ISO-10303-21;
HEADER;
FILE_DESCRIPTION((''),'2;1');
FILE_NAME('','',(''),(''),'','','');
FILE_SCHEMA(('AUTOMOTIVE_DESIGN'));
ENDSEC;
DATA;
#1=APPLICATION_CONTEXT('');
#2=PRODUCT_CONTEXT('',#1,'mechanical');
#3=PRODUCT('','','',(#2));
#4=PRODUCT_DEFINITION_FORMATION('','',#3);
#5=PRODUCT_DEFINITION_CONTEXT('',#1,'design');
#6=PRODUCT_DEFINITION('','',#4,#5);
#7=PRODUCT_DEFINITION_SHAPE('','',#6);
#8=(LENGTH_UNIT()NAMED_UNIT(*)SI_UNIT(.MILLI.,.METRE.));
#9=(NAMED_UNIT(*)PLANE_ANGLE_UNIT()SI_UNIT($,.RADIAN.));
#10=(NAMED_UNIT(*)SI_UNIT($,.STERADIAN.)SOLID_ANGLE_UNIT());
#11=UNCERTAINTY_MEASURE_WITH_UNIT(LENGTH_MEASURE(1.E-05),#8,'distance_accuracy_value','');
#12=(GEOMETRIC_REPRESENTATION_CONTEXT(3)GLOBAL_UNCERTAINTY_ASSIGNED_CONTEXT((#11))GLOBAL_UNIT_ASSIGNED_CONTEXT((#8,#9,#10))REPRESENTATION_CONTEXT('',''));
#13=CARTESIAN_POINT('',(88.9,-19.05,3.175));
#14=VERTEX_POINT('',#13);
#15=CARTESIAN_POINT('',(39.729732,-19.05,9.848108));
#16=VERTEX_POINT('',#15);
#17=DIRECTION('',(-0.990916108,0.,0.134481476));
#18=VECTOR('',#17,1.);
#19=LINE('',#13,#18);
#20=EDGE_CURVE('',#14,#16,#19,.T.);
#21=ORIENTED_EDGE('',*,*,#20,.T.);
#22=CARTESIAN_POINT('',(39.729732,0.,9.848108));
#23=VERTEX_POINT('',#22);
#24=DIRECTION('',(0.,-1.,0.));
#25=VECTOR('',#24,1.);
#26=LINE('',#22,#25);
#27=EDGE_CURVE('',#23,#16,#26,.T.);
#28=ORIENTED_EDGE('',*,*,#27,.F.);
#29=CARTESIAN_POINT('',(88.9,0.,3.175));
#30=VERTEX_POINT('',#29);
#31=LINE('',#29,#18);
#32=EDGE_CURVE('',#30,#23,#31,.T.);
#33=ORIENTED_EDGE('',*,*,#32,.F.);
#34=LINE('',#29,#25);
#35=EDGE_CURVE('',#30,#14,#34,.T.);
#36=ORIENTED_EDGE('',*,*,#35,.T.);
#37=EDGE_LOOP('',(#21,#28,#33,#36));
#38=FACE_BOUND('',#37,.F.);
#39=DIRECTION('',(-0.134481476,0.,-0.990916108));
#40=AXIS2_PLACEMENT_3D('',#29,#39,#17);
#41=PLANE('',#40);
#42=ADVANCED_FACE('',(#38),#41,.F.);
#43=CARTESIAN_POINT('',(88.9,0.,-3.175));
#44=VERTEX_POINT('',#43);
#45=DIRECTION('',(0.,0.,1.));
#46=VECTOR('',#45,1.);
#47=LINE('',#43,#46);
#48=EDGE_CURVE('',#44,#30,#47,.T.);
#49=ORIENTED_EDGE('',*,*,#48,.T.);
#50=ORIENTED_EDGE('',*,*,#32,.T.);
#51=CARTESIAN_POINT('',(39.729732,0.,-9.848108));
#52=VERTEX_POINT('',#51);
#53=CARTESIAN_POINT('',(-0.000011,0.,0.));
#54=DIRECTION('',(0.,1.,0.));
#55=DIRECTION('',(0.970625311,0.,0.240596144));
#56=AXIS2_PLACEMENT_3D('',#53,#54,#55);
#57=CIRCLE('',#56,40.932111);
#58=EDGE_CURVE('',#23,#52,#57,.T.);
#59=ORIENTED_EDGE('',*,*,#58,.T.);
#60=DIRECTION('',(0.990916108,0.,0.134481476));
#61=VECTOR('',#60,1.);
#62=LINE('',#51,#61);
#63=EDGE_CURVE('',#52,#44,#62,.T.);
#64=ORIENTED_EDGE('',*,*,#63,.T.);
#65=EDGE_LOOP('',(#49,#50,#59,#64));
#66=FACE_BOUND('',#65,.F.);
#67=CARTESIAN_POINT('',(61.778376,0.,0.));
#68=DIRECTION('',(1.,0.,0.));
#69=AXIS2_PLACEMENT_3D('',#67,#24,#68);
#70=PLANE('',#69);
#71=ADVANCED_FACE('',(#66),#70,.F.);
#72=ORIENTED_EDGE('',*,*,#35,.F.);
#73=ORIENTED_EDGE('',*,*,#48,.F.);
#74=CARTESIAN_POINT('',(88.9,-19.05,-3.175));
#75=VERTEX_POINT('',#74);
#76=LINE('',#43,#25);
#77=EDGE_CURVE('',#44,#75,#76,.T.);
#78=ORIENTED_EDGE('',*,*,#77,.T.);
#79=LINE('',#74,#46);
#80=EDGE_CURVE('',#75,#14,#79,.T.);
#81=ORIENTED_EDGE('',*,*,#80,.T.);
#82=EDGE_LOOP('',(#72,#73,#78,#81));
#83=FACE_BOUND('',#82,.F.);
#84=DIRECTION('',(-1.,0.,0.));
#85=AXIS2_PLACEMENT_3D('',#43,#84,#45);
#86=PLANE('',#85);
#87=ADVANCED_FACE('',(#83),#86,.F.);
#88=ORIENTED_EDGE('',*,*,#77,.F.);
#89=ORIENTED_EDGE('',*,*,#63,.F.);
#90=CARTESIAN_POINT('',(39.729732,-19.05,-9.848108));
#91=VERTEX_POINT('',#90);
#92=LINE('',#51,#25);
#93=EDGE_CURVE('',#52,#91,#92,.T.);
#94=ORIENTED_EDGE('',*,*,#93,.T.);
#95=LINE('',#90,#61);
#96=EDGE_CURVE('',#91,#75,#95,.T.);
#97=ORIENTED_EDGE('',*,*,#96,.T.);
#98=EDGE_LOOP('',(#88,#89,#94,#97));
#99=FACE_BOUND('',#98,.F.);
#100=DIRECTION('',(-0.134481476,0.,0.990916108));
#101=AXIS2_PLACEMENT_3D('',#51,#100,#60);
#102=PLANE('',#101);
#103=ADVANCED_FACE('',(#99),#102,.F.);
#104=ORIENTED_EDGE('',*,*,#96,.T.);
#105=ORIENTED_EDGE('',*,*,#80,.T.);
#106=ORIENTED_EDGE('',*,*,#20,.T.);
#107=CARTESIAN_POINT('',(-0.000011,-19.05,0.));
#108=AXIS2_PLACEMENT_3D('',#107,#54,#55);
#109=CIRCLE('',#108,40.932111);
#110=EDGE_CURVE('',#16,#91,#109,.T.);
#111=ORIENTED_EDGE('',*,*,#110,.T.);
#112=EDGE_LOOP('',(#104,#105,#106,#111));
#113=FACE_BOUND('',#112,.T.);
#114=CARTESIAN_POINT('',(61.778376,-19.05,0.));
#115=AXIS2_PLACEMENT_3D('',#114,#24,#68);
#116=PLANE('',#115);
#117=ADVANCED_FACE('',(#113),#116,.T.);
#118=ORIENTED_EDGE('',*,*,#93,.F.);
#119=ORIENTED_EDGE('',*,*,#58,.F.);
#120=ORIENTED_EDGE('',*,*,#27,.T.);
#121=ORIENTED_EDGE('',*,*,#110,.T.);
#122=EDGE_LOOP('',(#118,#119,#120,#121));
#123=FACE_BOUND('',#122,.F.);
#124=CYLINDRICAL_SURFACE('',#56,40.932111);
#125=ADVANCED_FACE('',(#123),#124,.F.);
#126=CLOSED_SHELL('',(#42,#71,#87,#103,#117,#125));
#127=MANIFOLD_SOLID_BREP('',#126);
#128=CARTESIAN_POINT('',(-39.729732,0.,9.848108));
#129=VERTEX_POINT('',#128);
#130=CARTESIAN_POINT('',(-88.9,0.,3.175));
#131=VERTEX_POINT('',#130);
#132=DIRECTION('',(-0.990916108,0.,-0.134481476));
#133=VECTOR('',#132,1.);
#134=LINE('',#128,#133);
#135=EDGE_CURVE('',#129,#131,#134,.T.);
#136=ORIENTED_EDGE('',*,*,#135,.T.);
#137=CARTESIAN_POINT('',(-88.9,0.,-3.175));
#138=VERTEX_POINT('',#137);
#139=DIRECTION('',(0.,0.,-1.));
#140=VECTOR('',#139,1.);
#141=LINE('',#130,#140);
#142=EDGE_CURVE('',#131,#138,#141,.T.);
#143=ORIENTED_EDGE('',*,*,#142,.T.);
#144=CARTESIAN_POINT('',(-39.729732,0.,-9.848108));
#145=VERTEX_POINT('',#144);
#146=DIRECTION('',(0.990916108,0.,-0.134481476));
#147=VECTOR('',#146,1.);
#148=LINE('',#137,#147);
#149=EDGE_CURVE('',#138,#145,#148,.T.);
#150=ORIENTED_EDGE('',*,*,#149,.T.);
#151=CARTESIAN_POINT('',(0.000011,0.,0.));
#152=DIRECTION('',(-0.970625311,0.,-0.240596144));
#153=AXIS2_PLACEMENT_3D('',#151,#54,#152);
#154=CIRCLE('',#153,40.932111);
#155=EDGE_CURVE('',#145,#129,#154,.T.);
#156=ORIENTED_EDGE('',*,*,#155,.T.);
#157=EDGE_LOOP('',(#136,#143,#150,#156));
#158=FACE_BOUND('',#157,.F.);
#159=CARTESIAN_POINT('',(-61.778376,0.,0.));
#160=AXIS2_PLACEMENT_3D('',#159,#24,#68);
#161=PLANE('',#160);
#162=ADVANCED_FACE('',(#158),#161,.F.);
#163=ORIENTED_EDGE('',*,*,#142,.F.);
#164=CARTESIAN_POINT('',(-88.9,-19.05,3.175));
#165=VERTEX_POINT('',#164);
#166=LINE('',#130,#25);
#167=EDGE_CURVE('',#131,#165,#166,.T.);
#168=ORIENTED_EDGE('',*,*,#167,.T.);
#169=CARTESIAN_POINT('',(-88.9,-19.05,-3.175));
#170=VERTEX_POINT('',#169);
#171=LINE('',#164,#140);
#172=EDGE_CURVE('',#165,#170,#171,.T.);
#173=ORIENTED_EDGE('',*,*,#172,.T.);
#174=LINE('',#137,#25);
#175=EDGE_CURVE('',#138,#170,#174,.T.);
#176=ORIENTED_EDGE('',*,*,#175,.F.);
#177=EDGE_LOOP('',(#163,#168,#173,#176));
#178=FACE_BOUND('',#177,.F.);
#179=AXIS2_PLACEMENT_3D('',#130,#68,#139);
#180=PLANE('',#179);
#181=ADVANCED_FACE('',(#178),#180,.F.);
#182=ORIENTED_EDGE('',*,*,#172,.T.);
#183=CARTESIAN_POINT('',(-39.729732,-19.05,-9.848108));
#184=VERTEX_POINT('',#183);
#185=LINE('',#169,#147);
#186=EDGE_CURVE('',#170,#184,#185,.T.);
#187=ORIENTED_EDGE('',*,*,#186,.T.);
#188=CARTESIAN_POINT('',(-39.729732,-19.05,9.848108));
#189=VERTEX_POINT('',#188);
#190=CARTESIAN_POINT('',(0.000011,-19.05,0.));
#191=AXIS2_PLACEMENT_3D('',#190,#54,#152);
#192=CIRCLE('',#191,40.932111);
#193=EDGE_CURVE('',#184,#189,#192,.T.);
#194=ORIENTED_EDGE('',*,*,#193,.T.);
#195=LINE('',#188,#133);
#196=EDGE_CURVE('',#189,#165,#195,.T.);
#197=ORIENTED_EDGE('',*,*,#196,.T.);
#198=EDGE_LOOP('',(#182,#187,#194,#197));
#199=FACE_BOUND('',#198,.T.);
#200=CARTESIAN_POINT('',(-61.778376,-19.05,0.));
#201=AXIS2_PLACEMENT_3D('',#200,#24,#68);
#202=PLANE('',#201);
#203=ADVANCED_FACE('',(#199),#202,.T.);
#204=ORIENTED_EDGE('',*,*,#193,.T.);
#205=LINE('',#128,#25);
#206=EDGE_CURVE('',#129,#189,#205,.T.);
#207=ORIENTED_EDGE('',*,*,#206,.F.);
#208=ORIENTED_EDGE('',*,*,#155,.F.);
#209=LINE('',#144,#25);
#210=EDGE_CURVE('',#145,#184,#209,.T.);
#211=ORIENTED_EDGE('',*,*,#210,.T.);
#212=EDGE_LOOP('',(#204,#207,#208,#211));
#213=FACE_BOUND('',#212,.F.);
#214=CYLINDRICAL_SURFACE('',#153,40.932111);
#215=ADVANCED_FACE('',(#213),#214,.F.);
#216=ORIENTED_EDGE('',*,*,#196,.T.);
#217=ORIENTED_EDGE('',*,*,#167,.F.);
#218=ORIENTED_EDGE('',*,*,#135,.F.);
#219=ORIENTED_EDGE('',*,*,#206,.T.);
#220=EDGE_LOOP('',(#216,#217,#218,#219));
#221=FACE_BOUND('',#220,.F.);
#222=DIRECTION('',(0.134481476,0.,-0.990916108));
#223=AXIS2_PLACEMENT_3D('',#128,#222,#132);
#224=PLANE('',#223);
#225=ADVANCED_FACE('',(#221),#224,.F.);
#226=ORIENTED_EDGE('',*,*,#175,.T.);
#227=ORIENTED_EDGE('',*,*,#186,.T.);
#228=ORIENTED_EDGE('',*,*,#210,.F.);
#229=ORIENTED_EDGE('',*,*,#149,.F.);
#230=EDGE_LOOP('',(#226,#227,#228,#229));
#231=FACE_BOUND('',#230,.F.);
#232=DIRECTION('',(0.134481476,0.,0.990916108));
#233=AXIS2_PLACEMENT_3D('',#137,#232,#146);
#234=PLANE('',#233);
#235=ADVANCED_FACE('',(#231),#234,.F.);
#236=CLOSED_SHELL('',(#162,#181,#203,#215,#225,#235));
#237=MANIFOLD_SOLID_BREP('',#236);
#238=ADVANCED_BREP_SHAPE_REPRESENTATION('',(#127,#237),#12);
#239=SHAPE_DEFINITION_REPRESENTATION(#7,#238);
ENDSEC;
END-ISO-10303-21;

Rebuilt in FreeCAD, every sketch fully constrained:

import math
import FreeCAD as App
import Part
import Sketcher
Q = App.Units.Quantity

doc = App.newDocument("Part")
body = doc.addObject("PartDesign::Body", "Body")
body.AllowCompound = True

# Sketch on XZ plane
sketch1 = body.newObject("Sketcher::SketchObject", "Sketch")
sketch1.AttachmentSupport = (doc.getObject("XZ_Plane"), [""])
sketch1.MapMode = "FlatFace"
sketch1.addGeometry([
    Part.ArcOfCircle(Part.Circle(App.Vector(0.000011, 0, 0), App.Vector(0, 0, 1), 40.932111), math.radians(166.078272), math.radians(193.921728)),  # 0
    Part.LineSegment(App.Vector(-39.729732, 9.848108, 0), App.Vector(-88.9, 3.175, 0)),  # 1
    Part.LineSegment(App.Vector(-88.9, 3.175, 0), App.Vector(-88.9, -3.175, 0)),  # 2
    Part.LineSegment(App.Vector(-88.9, -3.175, 0), App.Vector(-39.729732, -9.848108, 0)),  # 3
    Part.LineSegment(App.Vector(39.729732, -9.848108, 0), App.Vector(88.9, -3.175, 0)),  # 4
    Part.LineSegment(App.Vector(88.9, -3.175, 0), App.Vector(88.9, 3.175, 0)),  # 5
    Part.LineSegment(App.Vector(88.9, 3.175, 0), App.Vector(39.729732, 9.848108, 0)),  # 6
    Part.ArcOfCircle(Part.Circle(App.Vector(-0.000011, 0, 0), App.Vector(0, 0, 1), 40.932111), math.radians(-13.921728), math.radians(13.921728)),  # 7
], False)
sketch1.addConstraint([
    Sketcher.Constraint("Coincident", 0, 1, 1, 1),
    Sketcher.Constraint("Coincident", 1, 2, 2, 1),
    Sketcher.Constraint("Coincident", 2, 2, 3, 1),
    Sketcher.Constraint("Coincident", 3, 2, 0, 2),
    Sketcher.Constraint("Coincident", 4, 2, 5, 1),
    Sketcher.Constraint("Coincident", 5, 2, 6, 1),
    Sketcher.Constraint("Coincident", 6, 2, 7, 2),
    Sketcher.Constraint("Coincident", 7, 1, 4, 1),
    Sketcher.Constraint("Vertical", 2),
    Sketcher.Constraint("Vertical", 5),
    Sketcher.Constraint("Equal", 0, 7),
    Sketcher.Constraint("Symmetric", 0, 3, 7, 3, -1, 1),
    Sketcher.Constraint("Symmetric", 1, 2, 4, 2, -1, 1),
    Sketcher.Constraint("Symmetric", 0, 1, 6, 2, -2),
    Sketcher.Constraint("Parallel", 1, 4),
    Sketcher.Constraint("Parallel", 3, 6),
    Sketcher.Constraint("Horizontal", 2, 2, 4, 2),
    Sketcher.Constraint("Horizontal", 1, 2, 5, 2),
    Sketcher.Constraint("DistanceX", 2, 2, 4, 2, Q("7 in")),
    Sketcher.Constraint("DistanceY", 2, 2, 2, 1, Q("0.25 in")),
    Sketcher.Constraint("Radius", 0, Q("40.932111 mm")),
    Sketcher.Constraint("Distance", 1, Q("49.62102 mm")),
    Sketcher.Constraint("DistanceY", -1, 1, 0, 1, Q("9.848108 mm")),
])
pad1 = body.newObject("PartDesign::Pad", "Pad")
pad1.Profile = sketch1
pad1.Length = Q("0.75 in")

doc.recompute()
